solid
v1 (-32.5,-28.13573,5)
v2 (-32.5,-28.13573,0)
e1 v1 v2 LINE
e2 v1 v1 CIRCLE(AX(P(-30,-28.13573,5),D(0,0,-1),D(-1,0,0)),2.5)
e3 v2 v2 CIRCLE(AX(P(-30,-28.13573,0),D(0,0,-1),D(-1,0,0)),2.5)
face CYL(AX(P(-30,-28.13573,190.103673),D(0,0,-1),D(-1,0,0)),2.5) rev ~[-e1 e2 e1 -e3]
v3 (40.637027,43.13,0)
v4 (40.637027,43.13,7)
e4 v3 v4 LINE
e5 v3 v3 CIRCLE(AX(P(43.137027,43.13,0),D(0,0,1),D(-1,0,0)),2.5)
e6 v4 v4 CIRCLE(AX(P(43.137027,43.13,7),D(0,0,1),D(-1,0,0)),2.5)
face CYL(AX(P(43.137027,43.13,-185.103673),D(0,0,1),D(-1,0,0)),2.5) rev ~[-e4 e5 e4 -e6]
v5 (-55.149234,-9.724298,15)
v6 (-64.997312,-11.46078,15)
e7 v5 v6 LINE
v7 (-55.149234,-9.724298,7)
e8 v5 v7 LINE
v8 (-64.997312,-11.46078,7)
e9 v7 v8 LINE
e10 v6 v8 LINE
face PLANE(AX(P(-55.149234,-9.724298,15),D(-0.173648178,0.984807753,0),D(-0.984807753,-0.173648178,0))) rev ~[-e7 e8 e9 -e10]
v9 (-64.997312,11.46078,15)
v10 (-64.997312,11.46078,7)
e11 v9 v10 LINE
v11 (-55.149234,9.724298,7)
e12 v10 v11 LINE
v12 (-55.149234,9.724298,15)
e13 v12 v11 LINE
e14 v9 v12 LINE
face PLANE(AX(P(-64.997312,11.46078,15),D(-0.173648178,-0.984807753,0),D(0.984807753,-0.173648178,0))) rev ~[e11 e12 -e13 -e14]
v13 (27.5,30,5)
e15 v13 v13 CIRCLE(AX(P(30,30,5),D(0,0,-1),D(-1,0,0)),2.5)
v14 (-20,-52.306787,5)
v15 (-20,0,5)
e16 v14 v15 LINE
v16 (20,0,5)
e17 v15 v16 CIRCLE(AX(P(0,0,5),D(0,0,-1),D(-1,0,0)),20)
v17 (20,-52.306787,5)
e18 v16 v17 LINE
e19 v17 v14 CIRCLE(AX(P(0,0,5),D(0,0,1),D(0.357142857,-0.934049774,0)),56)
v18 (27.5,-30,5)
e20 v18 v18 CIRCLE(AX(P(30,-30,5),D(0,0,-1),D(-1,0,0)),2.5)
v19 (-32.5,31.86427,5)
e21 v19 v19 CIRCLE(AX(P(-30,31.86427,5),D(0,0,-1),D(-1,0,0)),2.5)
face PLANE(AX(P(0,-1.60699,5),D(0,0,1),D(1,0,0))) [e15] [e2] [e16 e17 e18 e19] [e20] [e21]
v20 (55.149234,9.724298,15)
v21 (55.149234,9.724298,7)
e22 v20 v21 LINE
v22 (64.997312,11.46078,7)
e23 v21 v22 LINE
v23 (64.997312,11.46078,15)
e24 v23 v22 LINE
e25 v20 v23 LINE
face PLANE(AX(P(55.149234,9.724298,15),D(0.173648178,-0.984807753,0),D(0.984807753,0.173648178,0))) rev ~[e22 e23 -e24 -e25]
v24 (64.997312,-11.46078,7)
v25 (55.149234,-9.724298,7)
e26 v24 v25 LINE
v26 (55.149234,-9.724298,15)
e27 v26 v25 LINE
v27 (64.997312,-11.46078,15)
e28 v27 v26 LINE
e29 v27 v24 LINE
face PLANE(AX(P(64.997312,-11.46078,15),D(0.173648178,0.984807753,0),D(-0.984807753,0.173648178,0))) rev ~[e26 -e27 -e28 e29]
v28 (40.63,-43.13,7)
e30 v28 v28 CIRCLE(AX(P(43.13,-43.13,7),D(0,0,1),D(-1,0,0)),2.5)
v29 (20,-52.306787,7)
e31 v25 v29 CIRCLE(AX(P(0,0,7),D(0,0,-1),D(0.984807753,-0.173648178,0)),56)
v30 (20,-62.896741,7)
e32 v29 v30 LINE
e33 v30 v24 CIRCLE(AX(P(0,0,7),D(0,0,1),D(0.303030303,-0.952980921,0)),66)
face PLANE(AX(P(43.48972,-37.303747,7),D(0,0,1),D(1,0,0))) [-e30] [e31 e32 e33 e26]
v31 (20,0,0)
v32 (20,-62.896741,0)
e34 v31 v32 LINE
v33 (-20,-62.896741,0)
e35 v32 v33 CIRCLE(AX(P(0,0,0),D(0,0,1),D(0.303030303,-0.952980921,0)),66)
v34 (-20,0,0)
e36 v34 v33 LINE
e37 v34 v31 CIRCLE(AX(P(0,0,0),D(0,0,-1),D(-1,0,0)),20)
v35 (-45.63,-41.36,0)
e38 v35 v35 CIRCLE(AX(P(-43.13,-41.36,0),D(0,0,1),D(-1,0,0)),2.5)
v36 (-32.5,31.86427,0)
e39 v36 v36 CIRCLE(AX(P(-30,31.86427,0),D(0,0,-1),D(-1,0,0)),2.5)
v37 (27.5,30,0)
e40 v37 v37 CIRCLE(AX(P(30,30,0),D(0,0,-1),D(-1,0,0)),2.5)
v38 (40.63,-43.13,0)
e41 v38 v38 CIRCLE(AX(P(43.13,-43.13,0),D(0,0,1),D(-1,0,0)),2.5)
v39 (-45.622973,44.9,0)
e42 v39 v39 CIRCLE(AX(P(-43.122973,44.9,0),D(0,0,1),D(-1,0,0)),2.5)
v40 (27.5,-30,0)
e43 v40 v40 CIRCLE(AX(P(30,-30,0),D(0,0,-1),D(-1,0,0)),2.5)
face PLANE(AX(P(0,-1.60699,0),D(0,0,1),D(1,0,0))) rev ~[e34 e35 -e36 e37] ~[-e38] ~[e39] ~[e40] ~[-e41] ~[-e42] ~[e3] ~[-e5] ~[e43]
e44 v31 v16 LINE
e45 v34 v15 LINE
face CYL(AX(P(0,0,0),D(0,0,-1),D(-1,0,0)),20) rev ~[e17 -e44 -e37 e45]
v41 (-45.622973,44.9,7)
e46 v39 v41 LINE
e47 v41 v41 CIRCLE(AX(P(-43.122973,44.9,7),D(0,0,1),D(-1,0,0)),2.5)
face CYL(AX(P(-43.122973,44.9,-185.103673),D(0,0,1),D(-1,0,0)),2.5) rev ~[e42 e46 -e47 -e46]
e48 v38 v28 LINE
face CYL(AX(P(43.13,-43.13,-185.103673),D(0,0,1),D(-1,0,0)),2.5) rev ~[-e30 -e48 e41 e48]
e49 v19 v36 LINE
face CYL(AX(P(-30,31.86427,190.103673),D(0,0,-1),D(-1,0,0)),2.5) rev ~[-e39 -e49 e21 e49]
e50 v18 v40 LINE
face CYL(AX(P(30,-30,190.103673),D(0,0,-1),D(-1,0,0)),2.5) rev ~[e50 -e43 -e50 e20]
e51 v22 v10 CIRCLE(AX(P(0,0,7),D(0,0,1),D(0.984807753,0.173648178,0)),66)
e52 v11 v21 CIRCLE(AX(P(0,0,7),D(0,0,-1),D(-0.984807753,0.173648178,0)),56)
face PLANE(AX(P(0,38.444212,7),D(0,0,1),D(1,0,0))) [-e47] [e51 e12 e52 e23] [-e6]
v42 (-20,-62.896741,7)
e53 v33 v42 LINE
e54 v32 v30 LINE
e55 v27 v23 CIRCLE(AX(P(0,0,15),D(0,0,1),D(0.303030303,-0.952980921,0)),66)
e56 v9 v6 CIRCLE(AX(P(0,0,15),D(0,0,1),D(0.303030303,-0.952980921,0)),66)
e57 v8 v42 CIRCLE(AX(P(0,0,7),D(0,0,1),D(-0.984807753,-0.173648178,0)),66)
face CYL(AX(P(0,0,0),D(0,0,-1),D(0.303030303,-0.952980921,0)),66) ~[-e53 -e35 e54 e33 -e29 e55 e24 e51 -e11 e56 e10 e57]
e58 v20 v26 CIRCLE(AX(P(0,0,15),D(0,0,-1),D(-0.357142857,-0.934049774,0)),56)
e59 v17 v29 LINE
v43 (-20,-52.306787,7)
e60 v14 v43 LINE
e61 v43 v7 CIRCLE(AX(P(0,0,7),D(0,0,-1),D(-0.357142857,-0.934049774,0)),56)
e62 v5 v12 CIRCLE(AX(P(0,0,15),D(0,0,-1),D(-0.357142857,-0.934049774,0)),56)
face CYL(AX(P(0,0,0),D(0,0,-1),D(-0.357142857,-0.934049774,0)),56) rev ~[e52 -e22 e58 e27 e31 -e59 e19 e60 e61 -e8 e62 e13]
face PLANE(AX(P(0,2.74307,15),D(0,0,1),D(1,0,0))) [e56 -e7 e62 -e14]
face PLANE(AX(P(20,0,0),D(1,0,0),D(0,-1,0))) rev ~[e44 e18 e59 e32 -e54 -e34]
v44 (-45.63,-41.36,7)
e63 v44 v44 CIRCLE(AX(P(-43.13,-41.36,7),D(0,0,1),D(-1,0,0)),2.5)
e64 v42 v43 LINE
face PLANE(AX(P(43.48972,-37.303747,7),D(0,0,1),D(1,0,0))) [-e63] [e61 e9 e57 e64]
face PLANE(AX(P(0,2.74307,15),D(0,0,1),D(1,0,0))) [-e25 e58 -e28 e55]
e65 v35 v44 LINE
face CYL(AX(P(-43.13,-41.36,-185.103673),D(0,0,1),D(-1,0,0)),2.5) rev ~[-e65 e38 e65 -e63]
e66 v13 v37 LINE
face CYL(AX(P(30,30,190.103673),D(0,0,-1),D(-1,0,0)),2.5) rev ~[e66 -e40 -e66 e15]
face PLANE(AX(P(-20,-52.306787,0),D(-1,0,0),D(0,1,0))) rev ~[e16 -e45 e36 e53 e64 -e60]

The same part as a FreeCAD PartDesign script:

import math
import FreeCAD as App
import Part
import Sketcher
from FreeCAD import Vector
Q = App.Units.Quantity

doc = App.newDocument("Part")
body = doc.addObject("PartDesign::Body", "Body")

sketch1 = body.newObject("Sketcher::SketchObject", "Sketch")
sketch1.AttachmentSupport = (doc.getObject("XY_Plane"), [""])
sketch1.MapMode = "FlatFace"
sketch1.addGeometry([
    Part.LineSegment(Vector(20, -52, 0), Vector(20, -63, 0)),
    Part.ArcOfCircle(Part.Circle(Vector(0, 0, 0), Vector(0, 0, 1), 66), math.radians(-72), math.radians(252)),
    Part.LineSegment(Vector(-20, -63, 0), Vector(-20, -52, 0)),
    Part.ArcOfCircle(Part.Circle(Vector(0, 0, 0), Vector(0, 0, 1), 56), math.radians(-69), math.radians(249)),
], False)
sketch1.addConstraint([
    Sketcher.Constraint("Coincident", 0, 2, 1, 1),
    Sketcher.Constraint("Coincident", 1, 2, 2, 1),
    Sketcher.Constraint("Coincident", 2, 2, 3, 2),
    Sketcher.Constraint("Coincident", 3, 1, 0, 1),
    Sketcher.Constraint("Vertical", 0),
    Sketcher.Constraint("Vertical", 2),
    Sketcher.Constraint("Coincident", 1, 3, -1, 1),
    Sketcher.Constraint("Coincident", 3, 3, -1, 1),
    Sketcher.Constraint("Horizontal", 0, 2, 1, 2),
    Sketcher.Constraint("Radius", 1, 66.0),
    Sketcher.Constraint("Radius", 3, 56.0),
    Sketcher.Constraint("DistanceX", -1, 1, 0, 2, 20.0),
])
pad1 = body.newObject("PartDesign::Pad", "Pad")
pad1.Profile = sketch1
pad1.Length = 15

sketch2 = body.newObject("Sketcher::SketchObject", "Sketch001")
sketch2.AttachmentSupport = (doc.getObject("XY_Plane"), [""])
sketch2.MapMode = "FlatFace"
sketch2.addGeometry([
    Part.LineSegment(Vector(20, 0, 0), Vector(20, -52, 0)),
    Part.ArcOfCircle(Part.Circle(Vector(0, 0, 0), Vector(0, 0, 1), 56), math.radians(-69), math.radians(249)),
    Part.LineSegment(Vector(-20, -52, 0), Vector(-20, 0, 0)),
    Part.ArcOfCircle(Part.Circle(Vector(0, 0, 0), Vector(0, 0, 1), 20), math.radians(0), math.radians(180)),
], False)
sketch2.addConstraint([
    Sketcher.Constraint("Coincident", 0, 2, 1, 1),
    Sketcher.Constraint("Coincident", 1, 2, 2, 1),
    Sketcher.Constraint("Tangent", 2, 2, 3, 2),
    Sketcher.Constraint("Tangent", 3, 1, 0, 1),
    Sketcher.Constraint("Vertical", 0),
    Sketcher.Constraint("Vertical", 2),
    Sketcher.Constraint("Coincident", 1, 3, -1, 1),
    Sketcher.Constraint("Coincident", 3, 3, -1, 1),
    Sketcher.Constraint("Radius", 1, 56.0),
    Sketcher.Constraint("Radius", 3, 20.0),
])
pad2 = body.newObject("PartDesign::Pad", "Pad001")
pad2.Profile = sketch2
pad2.Length = 5

sketch3 = body.newObject("Sketcher::SketchObject", "Sketch002")
sketch3.AttachmentSupport = (doc.getObject("XY_Plane"), [""])
sketch3.MapMode = "FlatFace"
sketch3.AttachmentOffset = App.Placement(Vector(0, 0, 15), App.Rotation())
sketch3.addGeometry([
    Part.ArcOfCircle(Part.Circle(Vector(0, 0, 0), Vector(0, 0, 1), 66), math.radians(-72), math.radians(-10)),
    Part.LineSegment(Vector(65, -11, 0), Vector(55, -10, 0)),
    Part.ArcOfCircle(Part.Circle(Vector(0, 0, 0), Vector(0, 0, 1), 56), math.radians(-69), math.radians(-10)),
    Part.ArcOfCircle(Part.Circle(Vector(0, 0, 0), Vector(0, 0, 1), 56), math.radians(-111), math.radians(-69)),
    Part.ArcOfCircle(Part.Circle(Vector(0, 0, 0), Vector(0, 0, 1), 56), math.radians(-170), math.radians(-111)),
    Part.LineSegment(Vector(-55, -10, 0), Vector(-65, -11, 0)),
    Part.ArcOfCircle(Part.Circle(Vector(0, 0, 0), Vector(0, 0, 1), 66), math.radians(-170), math.radians(-108)),
    Part.ArcOfCircle(Part.Circle(Vector(0, 0, 0), Vector(0, 0, 1), 66), math.radians(-108), math.radians(-72)),
    Part.LineSegment(Vector(-65, 11, 0), Vector(-55, 10, 0)),
    Part.ArcOfCircle(Part.Circle(Vector(0, 0, 0), Vector(0, 0, 1), 56), math.radians(10), math.radians(170)),
    Part.LineSegment(Vector(55, 10, 0), Vector(65, 11, 0)),
    Part.ArcOfCircle(Part.Circle(Vector(0, 0, 0), Vector(0, 0, 1), 66), math.radians(10), math.radians(170)),
], False)
sketch3.addConstraint([
    Sketcher.Constraint("Coincident", 0, 2, 1, 1),
    Sketcher.Constraint("Coincident", 1, 2, 2, 2),
    Sketcher.Constraint("Tangent", 2, 1, 3, 2),
    Sketcher.Constraint("Tangent", 3, 1, 4, 2),
    Sketcher.Constraint("Coincident", 4, 1, 5, 1),
    Sketcher.Constraint("Coincident", 5, 2, 6, 1),
    Sketcher.Constraint("Tangent", 6, 2, 7, 1),
    Sketcher.Constraint("Tangent", 7, 2, 0, 1),
    Sketcher.Constraint("Coincident", 8, 2, 9, 2),
    Sketcher.Constraint("Coincident", 9, 1, 10, 1),
    Sketcher.Constraint("Coincident", 10, 2, 11, 1),
    Sketcher.Constraint("Coincident", 11, 2, 8, 1),
    Sketcher.Constraint("Coincident", 0, 3, -1, 1),
    Sketcher.Constraint("Coincident", 2, 3, -1, 1),
    Sketcher.Constraint("Coincident", 4, 3, -1, 1),
    Sketcher.Constraint("Coincident", 6, 3, -1, 1),
    Sketcher.Constraint("Coincident", 9, 3, -1, 1),
    Sketcher.Constraint("Coincident", 11, 3, -1, 1),
    Sketcher.Constraint("Equal", 4, 9),
    Sketcher.Constraint("Equal", 7, 11),
    Sketcher.Constraint("Parallel", 1, 8),
    Sketcher.Constraint("Parallel", 5, 10),
    Sketcher.Constraint("Horizontal", 2, 1, 3, 1),
    Sketcher.Constraint("Horizontal", 1, 2, 4, 1),
    Sketcher.Constraint("Horizontal", 0, 2, 5, 2),
    Sketcher.Constraint("Horizontal", 6, 2, 7, 2),
    Sketcher.Constraint("Horizontal", 8, 2, 9, 1),
    Sketcher.Constraint("Vertical", 3, 1, 6, 2),
    Sketcher.Constraint("Vertical", 4, 1, 8, 2),
    Sketcher.Constraint("Radius", 0, 66.0),
    Sketcher.Constraint("Radius", 2, 56.0),
    Sketcher.Constraint("Angle", 1, Q("170 deg")),
    Sketcher.Constraint("DistanceX", -1, 1, 2, 1, 20.0),
    Sketcher.Constraint("DistanceX", -1, 1, 0, 2, 64.997312),
])
pocket1 = body.newObject("PartDesign::Pocket", "Pocket")
pocket1.Profile = sketch3
pocket1.Length = 8

sketch4 = body.newObject("Sketcher::SketchObject", "Sketch003")
sketch4.AttachmentSupport = (doc.getObject("XY_Plane"), [""])
sketch4.MapMode = "FlatFace"
sketch4.addGeometry([
    Part.Circle(Vector(43.1, -43.1, 0), Vector(0, 0, 1), 2.5),
    Part.Circle(Vector(43.1, 43.1, 0), Vector(0, 0, 1), 2.5),
    Part.Circle(Vector(-43.1, -41.4, 0), Vector(0, 0, 1), 2.5),
    Part.Circle(Vector(-43.1, 44.9, 0), Vector(0, 0, 1), 2.5),
], False)
sketch4.addConstraint([
    Sketcher.Constraint("Equal", 0, 1),
    Sketcher.Constraint("Equal", 1, 2),
    Sketcher.Constraint("Equal", 2, 3),
    Sketcher.Constraint("Diameter", 0, 5.0),
    Sketcher.Constraint("DistanceY", -1, 1, 3, 3, 44.9),
    Sketcher.Constraint("DistanceX", -1, 1, 0, 3, 43.13),
    Sketcher.Constraint("DistanceY", 0, 3, -1, 1, 43.13),
    Sketcher.Constraint("DistanceY", -1, 1, 1, 3, 43.13),
    Sketcher.Constraint("DistanceX", 2, 3, -1, 1, 43.13),
    Sketcher.Constraint("DistanceY", 2, 3, -1, 1, 41.36),
    Sketcher.Constraint("DistanceX", 3, 3, 1, 3, 86.26),
    Sketcher.Constraint("DistanceX", -1, 1, 1, 3, 43.137027),
])
doc.recompute()
hole = body.newObject("PartDesign::Hole", "Hole")
hole.Profile = sketch4
hole.ThreadType = "None"
hole.Diameter = 5
hole.DepthType = "ThroughAll"
hole.Reversed = True

sketch5 = body.newObject("Sketcher::SketchObject", "Sketch004")
sketch5.AttachmentSupport = (doc.getObject("XY_Plane"), [""])
sketch5.MapMode = "FlatFace"
sketch5.AttachmentOffset = App.Placement(Vector(0, 0, 5), App.Rotation())
sketch5.addGeometry([
    Part.Circle(Vector(30, -30, 0), Vector(0, 0, 1), 2.5),
    Part.Circle(Vector(30, 30, 0), Vector(0, 0, 1), 2.5),
    Part.Circle(Vector(-30, 31.9, 0), Vector(0, 0, 1), 2.5),
    Part.Circle(Vector(-30, -28.1, 0), Vector(0, 0, 1), 2.5),
], False)
sketch5.addConstraint([
    Sketcher.Constraint("Equal", 0, 1),
    Sketcher.Constraint("Equal", 1, 2),
    Sketcher.Constraint("Equal", 2, 3),
    Sketcher.Constraint("Symmetric", 0, 3, 1, 3, -1),
    Sketcher.Constraint("Vertical", 2, 3, 3, 3),
    Sketcher.Constraint("Diameter", 0, 5.0),
    Sketcher.Constraint("DistanceX", -1, 1, 0, 3, 30.0),
    Sketcher.Constraint("DistanceY", 0, 3, -1, 1, 30.0),
    Sketcher.Constraint("DistanceX", 2, 3, -1, 1, 30.0),
    Sketcher.Constraint("DistanceY", 3, 3, 2, 3, 60.0),
    Sketcher.Constraint("DistanceY", -1, 1, 2, 3, 31.86427),
])
doc.recompute()
hole2 = body.newObject("PartDesign::Hole", "Hole001")
hole2.Profile = sketch5
hole2.ThreadType = "None"
hole2.Diameter = 5
hole2.DepthType = "ThroughAll"

doc.recompute()
